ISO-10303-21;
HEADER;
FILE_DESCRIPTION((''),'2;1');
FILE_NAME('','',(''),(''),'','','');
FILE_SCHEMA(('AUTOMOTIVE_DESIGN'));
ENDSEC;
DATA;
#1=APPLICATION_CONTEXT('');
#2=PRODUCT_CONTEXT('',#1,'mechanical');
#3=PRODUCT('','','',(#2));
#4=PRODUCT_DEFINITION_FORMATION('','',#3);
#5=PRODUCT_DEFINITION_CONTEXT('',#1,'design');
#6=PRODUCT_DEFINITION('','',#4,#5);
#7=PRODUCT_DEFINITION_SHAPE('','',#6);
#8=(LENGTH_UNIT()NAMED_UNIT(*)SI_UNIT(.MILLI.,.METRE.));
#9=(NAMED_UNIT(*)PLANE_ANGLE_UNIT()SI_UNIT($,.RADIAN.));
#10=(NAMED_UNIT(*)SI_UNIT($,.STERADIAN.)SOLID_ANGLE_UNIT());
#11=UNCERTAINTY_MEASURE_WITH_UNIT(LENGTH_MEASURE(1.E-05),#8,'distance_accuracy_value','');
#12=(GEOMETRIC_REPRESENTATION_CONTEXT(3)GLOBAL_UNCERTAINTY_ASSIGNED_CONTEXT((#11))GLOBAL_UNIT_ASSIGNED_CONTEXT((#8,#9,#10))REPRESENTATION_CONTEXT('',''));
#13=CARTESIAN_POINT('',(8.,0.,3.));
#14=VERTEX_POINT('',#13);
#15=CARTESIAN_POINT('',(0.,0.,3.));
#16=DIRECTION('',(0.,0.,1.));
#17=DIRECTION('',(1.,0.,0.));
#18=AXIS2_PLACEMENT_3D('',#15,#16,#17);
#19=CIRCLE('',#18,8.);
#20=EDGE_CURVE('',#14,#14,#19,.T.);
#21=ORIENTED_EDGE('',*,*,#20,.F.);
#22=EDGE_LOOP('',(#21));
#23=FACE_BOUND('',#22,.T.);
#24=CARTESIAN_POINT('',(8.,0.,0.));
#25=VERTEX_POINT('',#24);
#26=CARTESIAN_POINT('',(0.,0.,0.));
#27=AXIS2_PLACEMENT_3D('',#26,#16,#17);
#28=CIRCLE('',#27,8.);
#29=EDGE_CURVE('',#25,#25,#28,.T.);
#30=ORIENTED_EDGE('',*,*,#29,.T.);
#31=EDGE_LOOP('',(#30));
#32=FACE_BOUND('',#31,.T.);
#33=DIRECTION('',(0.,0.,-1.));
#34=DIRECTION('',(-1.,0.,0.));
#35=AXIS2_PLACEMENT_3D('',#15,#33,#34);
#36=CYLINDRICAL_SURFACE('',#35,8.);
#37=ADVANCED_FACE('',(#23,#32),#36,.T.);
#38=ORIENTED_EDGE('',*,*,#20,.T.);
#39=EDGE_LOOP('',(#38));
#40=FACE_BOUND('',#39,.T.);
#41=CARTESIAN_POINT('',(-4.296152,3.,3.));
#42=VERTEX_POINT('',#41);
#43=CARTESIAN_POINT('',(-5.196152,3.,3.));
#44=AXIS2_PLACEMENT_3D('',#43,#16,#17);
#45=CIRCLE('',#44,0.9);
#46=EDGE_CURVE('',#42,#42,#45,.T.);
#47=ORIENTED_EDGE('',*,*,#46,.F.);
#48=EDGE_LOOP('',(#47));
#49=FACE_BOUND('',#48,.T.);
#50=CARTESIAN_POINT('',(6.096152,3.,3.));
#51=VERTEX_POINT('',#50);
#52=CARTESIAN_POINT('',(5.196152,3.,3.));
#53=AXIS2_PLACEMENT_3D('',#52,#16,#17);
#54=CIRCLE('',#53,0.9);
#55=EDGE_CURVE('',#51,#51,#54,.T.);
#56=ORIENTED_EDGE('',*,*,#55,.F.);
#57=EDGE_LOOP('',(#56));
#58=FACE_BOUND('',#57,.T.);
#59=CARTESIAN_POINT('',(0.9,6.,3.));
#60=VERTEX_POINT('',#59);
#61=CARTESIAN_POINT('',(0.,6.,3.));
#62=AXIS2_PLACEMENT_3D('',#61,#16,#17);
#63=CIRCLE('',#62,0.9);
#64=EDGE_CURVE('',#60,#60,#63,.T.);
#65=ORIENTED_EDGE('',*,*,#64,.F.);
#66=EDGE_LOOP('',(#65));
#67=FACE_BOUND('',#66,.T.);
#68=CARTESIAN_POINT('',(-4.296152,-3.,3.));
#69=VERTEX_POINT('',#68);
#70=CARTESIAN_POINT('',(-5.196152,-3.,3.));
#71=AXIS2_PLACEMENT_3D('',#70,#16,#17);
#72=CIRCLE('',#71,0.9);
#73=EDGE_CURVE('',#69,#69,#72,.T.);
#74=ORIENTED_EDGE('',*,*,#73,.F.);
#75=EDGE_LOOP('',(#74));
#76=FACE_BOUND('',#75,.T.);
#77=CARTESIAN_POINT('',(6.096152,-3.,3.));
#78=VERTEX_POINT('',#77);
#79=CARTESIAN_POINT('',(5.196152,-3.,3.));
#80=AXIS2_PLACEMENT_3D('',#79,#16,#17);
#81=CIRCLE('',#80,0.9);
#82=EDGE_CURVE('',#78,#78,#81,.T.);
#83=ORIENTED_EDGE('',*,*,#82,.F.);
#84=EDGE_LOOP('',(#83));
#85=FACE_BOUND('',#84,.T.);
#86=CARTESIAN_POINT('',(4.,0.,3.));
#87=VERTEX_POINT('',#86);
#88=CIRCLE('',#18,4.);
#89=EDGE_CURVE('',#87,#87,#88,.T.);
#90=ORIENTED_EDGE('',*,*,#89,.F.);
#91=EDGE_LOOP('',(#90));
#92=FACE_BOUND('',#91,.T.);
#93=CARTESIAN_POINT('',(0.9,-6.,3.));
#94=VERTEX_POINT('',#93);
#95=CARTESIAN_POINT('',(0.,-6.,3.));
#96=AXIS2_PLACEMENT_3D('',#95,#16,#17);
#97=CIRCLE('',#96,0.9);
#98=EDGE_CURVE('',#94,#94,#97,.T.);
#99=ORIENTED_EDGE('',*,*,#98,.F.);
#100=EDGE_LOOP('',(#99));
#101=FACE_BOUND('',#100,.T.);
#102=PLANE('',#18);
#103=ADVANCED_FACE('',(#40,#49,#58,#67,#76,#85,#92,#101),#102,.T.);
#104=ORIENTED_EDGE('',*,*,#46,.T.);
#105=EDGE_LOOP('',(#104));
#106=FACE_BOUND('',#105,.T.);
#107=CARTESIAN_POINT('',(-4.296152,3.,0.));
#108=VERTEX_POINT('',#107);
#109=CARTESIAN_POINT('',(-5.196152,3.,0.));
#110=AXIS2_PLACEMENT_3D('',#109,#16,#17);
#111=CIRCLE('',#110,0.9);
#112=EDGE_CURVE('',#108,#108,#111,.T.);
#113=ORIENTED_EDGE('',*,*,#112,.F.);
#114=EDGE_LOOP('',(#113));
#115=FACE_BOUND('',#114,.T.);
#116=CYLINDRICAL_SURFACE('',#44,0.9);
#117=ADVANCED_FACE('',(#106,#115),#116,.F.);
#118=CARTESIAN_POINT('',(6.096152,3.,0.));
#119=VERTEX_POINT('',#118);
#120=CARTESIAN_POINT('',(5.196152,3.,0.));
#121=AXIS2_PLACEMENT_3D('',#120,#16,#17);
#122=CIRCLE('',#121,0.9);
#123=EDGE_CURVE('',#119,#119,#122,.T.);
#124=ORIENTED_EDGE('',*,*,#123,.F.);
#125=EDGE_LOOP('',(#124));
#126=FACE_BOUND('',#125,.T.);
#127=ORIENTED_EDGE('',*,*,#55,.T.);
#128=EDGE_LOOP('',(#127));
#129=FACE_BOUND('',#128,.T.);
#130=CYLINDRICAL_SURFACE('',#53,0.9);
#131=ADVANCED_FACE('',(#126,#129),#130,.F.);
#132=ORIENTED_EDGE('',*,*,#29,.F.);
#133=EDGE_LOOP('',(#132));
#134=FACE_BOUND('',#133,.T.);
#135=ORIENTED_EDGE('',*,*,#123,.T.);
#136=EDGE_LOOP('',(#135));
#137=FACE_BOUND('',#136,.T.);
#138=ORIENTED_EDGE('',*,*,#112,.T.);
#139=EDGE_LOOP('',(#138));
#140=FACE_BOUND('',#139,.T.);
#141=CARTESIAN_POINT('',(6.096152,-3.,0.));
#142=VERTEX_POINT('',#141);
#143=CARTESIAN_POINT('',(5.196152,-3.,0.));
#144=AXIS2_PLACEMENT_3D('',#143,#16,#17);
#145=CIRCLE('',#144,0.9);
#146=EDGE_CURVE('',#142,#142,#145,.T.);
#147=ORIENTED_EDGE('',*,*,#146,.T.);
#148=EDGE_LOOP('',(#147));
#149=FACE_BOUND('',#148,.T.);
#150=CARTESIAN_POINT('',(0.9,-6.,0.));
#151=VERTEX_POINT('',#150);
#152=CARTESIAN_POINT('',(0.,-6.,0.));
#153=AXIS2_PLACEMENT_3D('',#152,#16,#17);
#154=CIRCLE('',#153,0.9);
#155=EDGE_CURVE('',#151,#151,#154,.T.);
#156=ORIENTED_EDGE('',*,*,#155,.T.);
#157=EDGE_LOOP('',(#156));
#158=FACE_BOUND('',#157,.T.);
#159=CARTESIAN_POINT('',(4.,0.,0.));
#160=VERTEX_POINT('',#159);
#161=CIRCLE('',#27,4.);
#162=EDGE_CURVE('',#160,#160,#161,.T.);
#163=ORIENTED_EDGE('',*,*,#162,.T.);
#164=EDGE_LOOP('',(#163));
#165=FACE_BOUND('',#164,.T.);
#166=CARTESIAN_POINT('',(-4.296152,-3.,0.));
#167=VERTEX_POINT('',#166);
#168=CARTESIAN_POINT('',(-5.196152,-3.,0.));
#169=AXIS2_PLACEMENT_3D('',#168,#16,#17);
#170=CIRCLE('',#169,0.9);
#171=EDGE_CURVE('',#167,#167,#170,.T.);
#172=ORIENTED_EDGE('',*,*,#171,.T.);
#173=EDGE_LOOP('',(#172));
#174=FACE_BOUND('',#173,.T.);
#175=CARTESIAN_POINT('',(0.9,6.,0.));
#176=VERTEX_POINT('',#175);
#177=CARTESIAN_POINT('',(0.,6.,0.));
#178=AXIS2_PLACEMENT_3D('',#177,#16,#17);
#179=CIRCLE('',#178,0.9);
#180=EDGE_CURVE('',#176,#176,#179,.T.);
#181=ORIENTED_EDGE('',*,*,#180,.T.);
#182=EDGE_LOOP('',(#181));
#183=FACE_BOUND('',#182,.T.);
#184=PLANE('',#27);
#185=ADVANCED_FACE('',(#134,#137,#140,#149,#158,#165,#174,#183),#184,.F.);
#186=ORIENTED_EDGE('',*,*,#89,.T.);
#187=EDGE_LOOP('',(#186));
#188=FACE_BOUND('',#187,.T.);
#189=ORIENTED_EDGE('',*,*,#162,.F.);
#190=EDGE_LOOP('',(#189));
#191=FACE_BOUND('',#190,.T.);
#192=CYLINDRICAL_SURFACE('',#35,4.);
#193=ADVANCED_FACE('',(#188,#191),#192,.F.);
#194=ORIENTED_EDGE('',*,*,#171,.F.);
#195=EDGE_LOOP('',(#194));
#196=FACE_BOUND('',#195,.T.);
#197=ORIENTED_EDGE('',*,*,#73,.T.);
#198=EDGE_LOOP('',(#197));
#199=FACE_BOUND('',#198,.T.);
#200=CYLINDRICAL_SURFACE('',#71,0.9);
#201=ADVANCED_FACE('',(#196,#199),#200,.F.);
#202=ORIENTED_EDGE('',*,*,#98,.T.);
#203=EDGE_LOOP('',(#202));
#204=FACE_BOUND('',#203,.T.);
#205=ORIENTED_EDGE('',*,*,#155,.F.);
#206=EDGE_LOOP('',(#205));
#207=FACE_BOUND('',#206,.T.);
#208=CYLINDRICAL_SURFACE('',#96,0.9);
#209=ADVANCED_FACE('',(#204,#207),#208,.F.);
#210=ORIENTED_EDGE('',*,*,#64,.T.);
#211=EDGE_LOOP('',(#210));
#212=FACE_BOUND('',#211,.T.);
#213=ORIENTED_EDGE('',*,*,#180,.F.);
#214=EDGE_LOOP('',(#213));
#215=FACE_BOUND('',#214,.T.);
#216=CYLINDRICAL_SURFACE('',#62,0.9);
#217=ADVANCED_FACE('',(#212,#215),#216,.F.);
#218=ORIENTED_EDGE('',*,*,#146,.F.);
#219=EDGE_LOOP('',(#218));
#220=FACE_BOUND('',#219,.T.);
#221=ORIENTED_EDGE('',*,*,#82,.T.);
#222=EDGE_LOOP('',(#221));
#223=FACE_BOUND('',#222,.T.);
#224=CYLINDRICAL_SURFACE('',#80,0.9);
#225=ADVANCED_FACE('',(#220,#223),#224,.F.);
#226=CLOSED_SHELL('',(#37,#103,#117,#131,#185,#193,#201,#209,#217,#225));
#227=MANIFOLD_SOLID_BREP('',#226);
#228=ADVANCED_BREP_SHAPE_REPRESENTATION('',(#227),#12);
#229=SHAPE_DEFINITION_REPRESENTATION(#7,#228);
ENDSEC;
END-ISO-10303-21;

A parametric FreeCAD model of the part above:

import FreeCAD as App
import Part
import Sketcher
Q = App.Units.Quantity

doc = App.newDocument("Part")
body = doc.addObject("PartDesign::Body", "Body")

# Sketch on XY plane
sketch1 = body.newObject("Sketcher::SketchObject", "Sketch")
sketch1.AttachmentSupport = (doc.getObject("XY_Plane"), [""])
sketch1.MapMode = "FlatFace"
sketch1.addGeometry(Part.Circle(App.Vector(0, 0, 0), App.Vector(0, 0, 1), 8), False)
sketch1.addGeometry(Part.Circle(App.Vector(0, 0, 0), App.Vector(0, 0, 1), 4), False)
sketch1.addConstraint(Sketcher.Constraint("Coincident", 0, 3, -1, 1))
sketch1.addConstraint(Sketcher.Constraint("Coincident", 1, 3, -1, 1))
sketch1.addConstraint(Sketcher.Constraint("Diameter", 0, Q("16 mm")))
sketch1.addConstraint(Sketcher.Constraint("Diameter", 1, Q("8 mm")))
pad1 = body.newObject("PartDesign::Pad", "Pad")
pad1.Profile = sketch1
pad1.Length = 3

# Sketch on XY plane
sketch2 = body.newObject("Sketcher::SketchObject", "Sketch001")
sketch2.AttachmentSupport = (doc.getObject("XY_Plane"), [""])
sketch2.MapMode = "FlatFace"
sketch2.AttachmentOffset = App.Placement(App.Vector(0, 0, 3), App.Rotation())
sketch2.addGeometry(Part.Circle(App.Vector(0, 6, 0), App.Vector(0, 0, 1), 0.9), False)
sketch2.addConstraint(Sketcher.Constraint("PointOnObject", 0, 3, -2))
sketch2.addConstraint(Sketcher.Constraint("Diameter", 0, Q("1.8 mm")))
sketch2.addConstraint(Sketcher.Constraint("DistanceY", -1, 1, 0, 3, Q("6 mm")))
doc.recompute()
hole = body.newObject("PartDesign::Hole", "Hole")
hole.Profile = sketch2
hole.ThreadType = "None"
hole.Diameter = 1.8
hole.DepthType = "ThroughAll"
doc.recompute()

polarpattern = body.newObject("PartDesign::PolarPattern", "PolarPattern")
polarpattern.Originals = [hole]
polarpattern.Axis = (doc.getObject("Z_Axis"), [""])
polarpattern.Angle = 360
polarpattern.Occurrences = 6
body.Tip = polarpattern

doc.recompute()
